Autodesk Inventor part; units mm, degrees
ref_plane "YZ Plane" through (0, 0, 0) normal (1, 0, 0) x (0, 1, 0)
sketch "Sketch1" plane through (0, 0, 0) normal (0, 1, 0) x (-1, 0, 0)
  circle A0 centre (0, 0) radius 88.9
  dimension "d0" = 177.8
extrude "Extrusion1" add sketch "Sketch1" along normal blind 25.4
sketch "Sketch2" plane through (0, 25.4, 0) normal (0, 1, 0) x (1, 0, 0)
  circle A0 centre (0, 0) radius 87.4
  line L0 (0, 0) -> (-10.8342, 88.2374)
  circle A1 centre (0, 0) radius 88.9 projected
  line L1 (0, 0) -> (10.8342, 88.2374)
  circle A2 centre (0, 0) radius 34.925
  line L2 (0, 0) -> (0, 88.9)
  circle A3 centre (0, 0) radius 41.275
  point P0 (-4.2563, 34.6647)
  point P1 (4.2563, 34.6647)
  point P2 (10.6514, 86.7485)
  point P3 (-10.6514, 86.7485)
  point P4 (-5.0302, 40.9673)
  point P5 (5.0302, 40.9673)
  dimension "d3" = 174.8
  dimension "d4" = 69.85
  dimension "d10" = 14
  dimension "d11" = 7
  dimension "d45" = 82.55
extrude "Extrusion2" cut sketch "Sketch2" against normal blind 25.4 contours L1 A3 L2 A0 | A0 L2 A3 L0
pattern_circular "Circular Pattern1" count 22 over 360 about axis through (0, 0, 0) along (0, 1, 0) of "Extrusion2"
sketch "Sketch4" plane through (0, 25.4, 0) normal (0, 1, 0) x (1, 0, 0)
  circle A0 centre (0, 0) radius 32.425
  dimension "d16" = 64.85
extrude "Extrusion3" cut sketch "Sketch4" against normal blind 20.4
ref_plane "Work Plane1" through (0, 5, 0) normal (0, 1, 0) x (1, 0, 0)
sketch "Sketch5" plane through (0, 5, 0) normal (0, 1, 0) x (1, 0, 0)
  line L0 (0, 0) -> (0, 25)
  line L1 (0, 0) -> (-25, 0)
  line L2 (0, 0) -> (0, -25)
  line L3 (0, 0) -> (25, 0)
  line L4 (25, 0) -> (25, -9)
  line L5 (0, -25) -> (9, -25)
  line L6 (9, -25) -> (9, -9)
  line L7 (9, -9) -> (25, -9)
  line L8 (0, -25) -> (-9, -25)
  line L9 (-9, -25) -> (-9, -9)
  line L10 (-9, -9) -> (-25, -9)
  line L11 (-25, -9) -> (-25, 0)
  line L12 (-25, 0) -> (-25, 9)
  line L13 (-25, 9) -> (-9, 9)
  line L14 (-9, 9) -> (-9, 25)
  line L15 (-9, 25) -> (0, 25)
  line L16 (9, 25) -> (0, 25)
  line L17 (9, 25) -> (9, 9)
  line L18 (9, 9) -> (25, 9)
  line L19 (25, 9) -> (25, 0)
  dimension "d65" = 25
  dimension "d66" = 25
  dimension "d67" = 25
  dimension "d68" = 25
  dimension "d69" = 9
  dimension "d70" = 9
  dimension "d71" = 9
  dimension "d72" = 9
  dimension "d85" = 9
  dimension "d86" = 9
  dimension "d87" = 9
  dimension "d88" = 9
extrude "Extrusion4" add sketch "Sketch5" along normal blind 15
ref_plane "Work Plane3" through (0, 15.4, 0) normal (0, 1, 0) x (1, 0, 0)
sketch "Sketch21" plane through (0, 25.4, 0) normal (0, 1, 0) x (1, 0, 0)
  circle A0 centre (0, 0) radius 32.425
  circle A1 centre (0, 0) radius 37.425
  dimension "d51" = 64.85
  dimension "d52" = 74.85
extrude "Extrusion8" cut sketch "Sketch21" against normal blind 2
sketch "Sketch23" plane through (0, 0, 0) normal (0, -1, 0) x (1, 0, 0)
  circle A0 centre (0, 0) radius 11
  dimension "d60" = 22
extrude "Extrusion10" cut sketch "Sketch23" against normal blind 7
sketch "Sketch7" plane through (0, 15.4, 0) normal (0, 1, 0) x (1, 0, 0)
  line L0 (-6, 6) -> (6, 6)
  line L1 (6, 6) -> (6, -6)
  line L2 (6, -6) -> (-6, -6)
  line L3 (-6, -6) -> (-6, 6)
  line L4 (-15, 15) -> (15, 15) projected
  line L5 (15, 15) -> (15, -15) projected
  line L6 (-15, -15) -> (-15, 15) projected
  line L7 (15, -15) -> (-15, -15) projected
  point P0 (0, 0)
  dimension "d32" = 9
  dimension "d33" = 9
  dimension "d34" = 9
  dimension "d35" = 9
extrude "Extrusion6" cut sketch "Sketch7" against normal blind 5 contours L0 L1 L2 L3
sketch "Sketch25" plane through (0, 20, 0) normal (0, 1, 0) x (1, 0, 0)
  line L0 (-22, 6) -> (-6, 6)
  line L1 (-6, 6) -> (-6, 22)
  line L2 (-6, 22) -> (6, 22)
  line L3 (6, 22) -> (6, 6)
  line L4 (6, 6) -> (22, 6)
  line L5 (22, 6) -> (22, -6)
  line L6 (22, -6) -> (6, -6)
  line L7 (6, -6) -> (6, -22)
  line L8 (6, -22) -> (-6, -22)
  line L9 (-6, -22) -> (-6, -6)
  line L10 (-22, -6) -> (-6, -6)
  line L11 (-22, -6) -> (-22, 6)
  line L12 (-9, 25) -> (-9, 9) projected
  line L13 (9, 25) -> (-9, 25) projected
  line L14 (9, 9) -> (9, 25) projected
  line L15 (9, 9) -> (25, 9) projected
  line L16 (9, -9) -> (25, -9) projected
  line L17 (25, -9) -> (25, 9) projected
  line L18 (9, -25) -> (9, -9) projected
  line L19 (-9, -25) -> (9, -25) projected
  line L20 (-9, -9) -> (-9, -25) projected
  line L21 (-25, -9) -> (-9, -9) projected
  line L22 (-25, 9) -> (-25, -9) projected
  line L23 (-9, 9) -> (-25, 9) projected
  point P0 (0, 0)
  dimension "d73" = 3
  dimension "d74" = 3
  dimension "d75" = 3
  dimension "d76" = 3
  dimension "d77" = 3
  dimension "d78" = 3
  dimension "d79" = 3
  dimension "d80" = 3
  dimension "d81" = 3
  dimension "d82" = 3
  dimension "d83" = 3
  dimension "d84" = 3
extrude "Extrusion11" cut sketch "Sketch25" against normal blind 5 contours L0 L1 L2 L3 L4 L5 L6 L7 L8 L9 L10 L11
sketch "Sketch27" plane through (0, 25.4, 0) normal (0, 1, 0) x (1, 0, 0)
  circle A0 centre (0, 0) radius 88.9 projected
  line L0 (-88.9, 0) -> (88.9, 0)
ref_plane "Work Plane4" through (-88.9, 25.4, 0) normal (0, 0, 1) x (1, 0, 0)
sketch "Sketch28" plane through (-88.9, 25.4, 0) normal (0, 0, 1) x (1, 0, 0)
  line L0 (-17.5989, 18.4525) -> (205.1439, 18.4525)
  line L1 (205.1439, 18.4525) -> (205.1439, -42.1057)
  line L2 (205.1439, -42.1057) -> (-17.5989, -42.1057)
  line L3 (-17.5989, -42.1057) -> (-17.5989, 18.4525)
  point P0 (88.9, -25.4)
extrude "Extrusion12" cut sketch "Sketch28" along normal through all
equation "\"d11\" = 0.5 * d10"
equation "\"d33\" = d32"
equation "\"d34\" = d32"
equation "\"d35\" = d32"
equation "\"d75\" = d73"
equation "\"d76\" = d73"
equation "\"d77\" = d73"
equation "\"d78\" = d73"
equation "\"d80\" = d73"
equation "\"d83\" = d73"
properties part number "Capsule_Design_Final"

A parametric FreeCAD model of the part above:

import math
import FreeCAD as App
import Part
import Sketcher

V = App.Vector
Q = App.Units.Quantity

doc = App.newDocument("Part")
params = doc.addObject("Spreadsheet::Sheet", "Params")
for row, (alias, value) in enumerate([
    ("sketch1_diameter", "177.8 mm"),
    ("pad1_length", "25.4 mm"),
    ("sketch2_radius", "87.4 mm"),
    ("pocket1_length", "25.4 mm"),
    ("sketch3_diameter", "64.85 mm"),
    ("pocket2_length", "20.4 mm"),
    ("pad2_length", "15 mm"),
    ("sketch5_diameter", "74.85 mm"),
    ("sketch5_diameter2", "64.85 mm"),
    ("pocket3_length", "2 mm"),
    ("sketch6_diameter", "22 mm"),
    ("pocket4_length", "7 mm"),
    ("sketch7_width", "12 mm"),
    ("pocket5_length", "5 mm"),
    ("sketch8_width", "16 mm"),
    ("sketch8_width2", "12 mm"),
    ("pocket6_length", "5 mm"),
], start=1):
    params.set(f"A{row}", alias)
    params.set(f"B{row}", "=" + value)
    params.setAlias(f"B{row}", alias)

body = doc.addObject("PartDesign::Body", "Body")

sketch1 = body.newObject("Sketcher::SketchObject", "Sketch")
sketch1.AttachmentSupport = (doc.getObject("XZ_Plane"), [""])
sketch1.MapMode = "FlatFace"
sketch1.addGeometry(Part.Circle(V(0, 0, 0), V(0, 0, 1), 89), False)
sketch1.addConstraint([
    Sketcher.Constraint("Coincident", 0, 3, -1, 1),
    Sketcher.Constraint("Diameter", 0, Q("177.8 mm")),
])
sketch1.setExpression("Constraints[1]", "Params.sketch1_diameter")
pad1 = body.newObject("PartDesign::Pad", "Pad")
pad1.Profile = sketch1
pad1.setExpression("Length", "Params.pad1_length")
pad1.Reversed = True

sketch2 = body.newObject("Sketcher::SketchObject", "Sketch001")
sketch2.AttachmentSupport = (doc.getObject("XZ_Plane"), [""])
sketch2.MapMode = "FlatFace"
sketch2.AttachmentOffset = App.Placement(V(0, 0, -25.4), App.Rotation())
sketch2.addGeometry([
    Part.LineSegment(V(5, -41, 0), V(11, -87, 0)),
    Part.ArcOfCircle(Part.Circle(V(0, 0, 0), V(0, 0, 1), 87), math.radians(-97), math.radians(-83)),
    Part.LineSegment(V(-11, -87, 0), V(-5, -41, 0)),
    Part.ArcOfCircle(Part.Circle(V(0, 0, 0), V(0, 0, 1), 41), math.radians(-97), math.radians(-83)),
], False)
sketch2.addConstraint([
    Sketcher.Constraint("Coincident", 0, 2, 1, 2),
    Sketcher.Constraint("Coincident", 1, 1, 2, 1),
    Sketcher.Constraint("Coincident", 2, 2, 3, 1),
    Sketcher.Constraint("Coincident", 3, 2, 0, 1),
    Sketcher.Constraint("Coincident", 1, 3, -1, 1),
    Sketcher.Constraint("Coincident", 3, 3, -1, 1),
    Sketcher.Constraint("Horizontal", 0, 2, 1, 1),
    Sketcher.Constraint("Horizontal", 2, 2, 3, 2),
    Sketcher.Constraint("Radius", 1, Q("87.4 mm")),
    Sketcher.Constraint("Radius", 3, Q("41.275 mm")),
    Sketcher.Constraint("Angle", 0, Q("-83 deg")),
    Sketcher.Constraint("DistanceX", -1, 1, 0, 2, Q("10.6514 mm")),
])
sketch2.setExpression("Constraints[8]", "Params.sketch2_radius")
pocket1 = body.newObject("PartDesign::Pocket", "Pocket")
pocket1.Profile = sketch2
pocket1.setExpression("Length", "Params.pocket1_length")
pocket1.Reversed = True
doc.recompute()

polarpattern = body.newObject("PartDesign::PolarPattern", "PolarPattern")
polarpattern.Originals = [pocket1]
polarpattern.Axis = (doc.getObject("Y_Axis"), [""])
polarpattern.Angle = 360
polarpattern.Occurrences = 22
body.Tip = polarpattern

sketch3 = body.newObject("Sketcher::SketchObject", "Sketch002")
sketch3.AttachmentSupport = (doc.getObject("XZ_Plane"), [""])
sketch3.MapMode = "FlatFace"
sketch3.AttachmentOffset = App.Placement(V(0, 0, -25.4), App.Rotation())
sketch3.addGeometry(Part.Circle(V(0, 0, 0), V(0, 0, 1), 32), False)
sketch3.addConstraint([
    Sketcher.Constraint("Coincident", 0, 3, -1, 1),
    Sketcher.Constraint("Diameter", 0, Q("64.85 mm")),
])
sketch3.setExpression("Constraints[1]", "Params.sketch3_diameter")
pocket2 = body.newObject("PartDesign::Pocket", "Pocket001")
pocket2.Profile = sketch3
pocket2.setExpression("Length", "Params.pocket2_length")
pocket2.Reversed = True

sketch4 = body.newObject("Sketcher::SketchObject", "Sketch003")
sketch4.AttachmentSupport = (doc.getObject("XZ_Plane"), [""])
sketch4.MapMode = "FlatFace"
sketch4.AttachmentOffset = App.Placement(V(0, 0, -5), App.Rotation())
sketch4.addGeometry([
    Part.LineSegment(V(-25, -9, 0), V(-25, 9, 0)),
    Part.LineSegment(V(-25, 9, 0), V(-9, 9, 0)),
    Part.LineSegment(V(-9, 9, 0), V(-9, 25, 0)),
    Part.LineSegment(V(-9, 25, 0), V(9, 25, 0)),
    Part.LineSegment(V(9, 25, 0), V(9, 9, 0)),
    Part.LineSegment(V(9, 9, 0), V(25, 9, 0)),
    Part.LineSegment(V(25, 9, 0), V(25, -9, 0)),
    Part.LineSegment(V(25, -9, 0), V(9, -9, 0)),
    Part.LineSegment(V(9, -9, 0), V(9, -25, 0)),
    Part.LineSegment(V(9, -25, 0), V(-9, -25, 0)),
    Part.LineSegment(V(-9, -25, 0), V(-9, -9, 0)),
    Part.LineSegment(V(-9, -9, 0), V(-25, -9, 0)),
], False)
sketch4.addConstraint([
    Sketcher.Constraint("Coincident", 0, 2, 1, 1),
    Sketcher.Constraint("Coincident", 1, 2, 2, 1),
    Sketcher.Constraint("Coincident", 2, 2, 3, 1),
    Sketcher.Constraint("Coincident", 3, 2, 4, 1),
    Sketcher.Constraint("Coincident", 4, 2, 5, 1),
    Sketcher.Constraint("Coincident", 5, 2, 6, 1),
    Sketcher.Constraint("Coincident", 6, 2, 7, 1),
    Sketcher.Constraint("Coincident", 7, 2, 8, 1),
    Sketcher.Constraint("Coincident", 8, 2, 9, 1),
    Sketcher.Constraint("Coincident", 9, 2, 10, 1),
    Sketcher.Constraint("Coincident", 10, 2, 11, 1),
    Sketcher.Constraint("Coincident", 11, 2, 0, 1),
    Sketcher.Constraint("Vertical", 0),
    Sketcher.Constraint("Horizontal", 1),
    Sketcher.Constraint("Vertical", 2),
    Sketcher.Constraint("Horizontal", 3),
    Sketcher.Constraint("Vertical", 4),
    Sketcher.Constraint("Horizontal", 5),
    Sketcher.Constraint("Vertical", 6),
    Sketcher.Constraint("Horizontal", 7),
    Sketcher.Constraint("Vertical", 8),
    Sketcher.Constraint("Horizontal", 9),
    Sketcher.Constraint("Vertical", 10),
    Sketcher.Constraint("Horizontal", 11),
    Sketcher.Constraint("Symmetric", 0, 2, 6, 2, -1, 1),
    Sketcher.Constraint("Symmetric", 2, 2, 8, 2, -1, 1),
    Sketcher.Constraint("Symmetric", 4, 2, 10, 2, -1, 1),
    Sketcher.Constraint("Symmetric", 1, 2, 4, 2, -2),
    Sketcher.Constraint("Equal", 9, 0),
    Sketcher.Constraint("Equal", 11, 2),
    Sketcher.Constraint("DistanceX", 0, 2, -1, 1, Q("25 mm")),
    Sketcher.Constraint("DistanceY", -1, 1, 0, 2, Q("9 mm")),
])
pad2 = body.newObject("PartDesign::Pad", "Pad001")
pad2.Profile = sketch4
pad2.setExpression("Length", "Params.pad2_length")
pad2.Reversed = True

sketch5 = body.newObject("Sketcher::SketchObject", "Sketch004")
sketch5.AttachmentSupport = (doc.getObject("XZ_Plane"), [""])
sketch5.MapMode = "FlatFace"
sketch5.AttachmentOffset = App.Placement(V(0, 0, -25.4), App.Rotation())
sketch5.addGeometry([
    Part.Circle(V(0, 0, 0), V(0, 0, 1), 37),
    Part.Circle(V(0, 0, 0), V(0, 0, 1), 32),
], False)
sketch5.addConstraint([
    Sketcher.Constraint("Coincident", 0, 3, -1, 1),
    Sketcher.Constraint("Coincident", 1, 3, -1, 1),
    Sketcher.Constraint("Diameter", 0, Q("74.85 mm")),
    Sketcher.Constraint("Diameter", 1, Q("64.85 mm")),
])
sketch5.setExpression("Constraints[2]", "Params.sketch5_diameter")
sketch5.setExpression("Constraints[3]", "Params.sketch5_diameter2")
pocket3 = body.newObject("PartDesign::Pocket", "Pocket002")
pocket3.Profile = sketch5
pocket3.setExpression("Length", "Params.pocket3_length")
pocket3.Reversed = True

sketch6 = body.newObject("Sketcher::SketchObject", "Sketch005")
sketch6.AttachmentSupport = (doc.getObject("XZ_Plane"), [""])
sketch6.MapMode = "FlatFace"
sketch6.addGeometry(Part.Circle(V(0, 0, 0), V(0, 0, 1), 11), False)
sketch6.addConstraint([
    Sketcher.Constraint("Coincident", 0, 3, -1, 1),
    Sketcher.Constraint("Diameter", 0, Q("22 mm")),
])
sketch6.setExpression("Constraints[1]", "Params.sketch6_diameter")
pocket4 = body.newObject("PartDesign::Pocket", "Pocket003")
pocket4.Profile = sketch6
pocket4.setExpression("Length", "Params.pocket4_length")

sketch7 = body.newObject("Sketcher::SketchObject", "Sketch006")
sketch7.AttachmentSupport = (doc.getObject("XZ_Plane"), [""])
sketch7.MapMode = "FlatFace"
sketch7.AttachmentOffset = App.Placement(V(0, 0, -15.4), App.Rotation())
sketch7.addGeometry([
    Part.LineSegment(V(6, -6, 0), V(-6, -6, 0)),
    Part.LineSegment(V(-6, -6, 0), V(-6, 6, 0)),
    Part.LineSegment(V(-6, 6, 0), V(6, 6, 0)),
    Part.LineSegment(V(6, 6, 0), V(6, -6, 0)),
], False)
sketch7.addConstraint([
    Sketcher.Constraint("Coincident", 0, 2, 1, 1),
    Sketcher.Constraint("Coincident", 1, 2, 2, 1),
    Sketcher.Constraint("Coincident", 2, 2, 3, 1),
    Sketcher.Constraint("Coincident", 3, 2, 0, 1),
    Sketcher.Constraint("Horizontal", 0),
    Sketcher.Constraint("Vertical", 1),
    Sketcher.Constraint("Horizontal", 2),
    Sketcher.Constraint("Vertical", 3),
    Sketcher.Constraint("Symmetric", 0, 2, 2, 2, -1, 1),
    Sketcher.Constraint("Equal", 2, 1),
    Sketcher.Constraint("DistanceX", 0, 2, 0, 1, Q("12 mm")),
])
sketch7.setExpression("Constraints[10]", "Params.sketch7_width")
pocket5 = body.newObject("PartDesign::Pocket", "Pocket004")
pocket5.Profile = sketch7
pocket5.setExpression("Length", "Params.pocket5_length")
pocket5.Reversed = True

sketch8 = body.newObject("Sketcher::SketchObject", "Sketch007")
sketch8.AttachmentSupport = (doc.getObject("XZ_Plane"), [""])
sketch8.MapMode = "FlatFace"
sketch8.AttachmentOffset = App.Placement(V(0, 0, -20), App.Rotation())
sketch8.addGeometry([
    Part.LineSegment(V(-6, -6, 0), V(-22, -6, 0)),
    Part.LineSegment(V(-22, -6, 0), V(-22, 6, 0)),
    Part.LineSegment(V(-22, 6, 0), V(-6, 6, 0)),
    Part.LineSegment(V(-6, 6, 0), V(-6, 22, 0)),
    Part.LineSegment(V(-6, 22, 0), V(6, 22, 0)),
    Part.LineSegment(V(6, 22, 0), V(6, 6, 0)),
    Part.LineSegment(V(6, 6, 0), V(22, 6, 0)),
    Part.LineSegment(V(22, 6, 0), V(22, -6, 0)),
    Part.LineSegment(V(22, -6, 0), V(6, -6, 0)),
    Part.LineSegment(V(6, -6, 0), V(6, -22, 0)),
    Part.LineSegment(V(6, -22, 0), V(-6, -22, 0)),
    Part.LineSegment(V(-6, -22, 0), V(-6, -6, 0)),
], False)
sketch8.addConstraint([
    Sketcher.Constraint("Coincident", 0, 2, 1, 1),
    Sketcher.Constraint("Coincident", 1, 2, 2, 1),
    Sketcher.Constraint("Coincident", 2, 2, 3, 1),
    Sketcher.Constraint("Coincident", 3, 2, 4, 1),
    Sketcher.Constraint("Coincident", 4, 2, 5, 1),
    Sketcher.Constraint("Coincident", 5, 2, 6, 1),
    Sketcher.Constraint("Coincident", 6, 2, 7, 1),
    Sketcher.Constraint("Coincident", 7, 2, 8, 1),
    Sketcher.Constraint("Coincident", 8, 2, 9, 1),
    Sketcher.Constraint("Coincident", 9, 2, 10, 1),
    Sketcher.Constraint("Coincident", 10, 2, 11, 1),
    Sketcher.Constraint("Coincident", 11, 2, 0, 1),
    Sketcher.Constraint("Horizontal", 0),
    Sketcher.Constraint("Vertical", 1),
    Sketcher.Constraint("Horizontal", 2),
    Sketcher.Constraint("Vertical", 3),
    Sketcher.Constraint("Horizontal", 4),
    Sketcher.Constraint("Vertical", 5),
    Sketcher.Constraint("Horizontal", 6),
    Sketcher.Constraint("Vertical", 7),
    Sketcher.Constraint("Horizontal", 8),
    Sketcher.Constraint("Vertical", 9),
    Sketcher.Constraint("Horizontal", 10),
    Sketcher.Constraint("Vertical", 11),
    Sketcher.Constraint("Symmetric", 0, 2, 6, 2, -1, 1),
    Sketcher.Constraint("Symmetric", 2, 2, 8, 2, -1, 1),
    Sketcher.Constraint("Symmetric", 4, 2, 10, 2, -1, 1),
    Sketcher.Constraint("Symmetric", 2, 2, 5, 2, -2),
    Sketcher.Constraint("Equal", 10, 1),
    Sketcher.Constraint("Equal", 8, 3),
    Sketcher.Constraint("DistanceX", 0, 2, 0, 1, Q("16 mm")),
    Sketcher.Constraint("DistanceX", 4, 1, 4, 2, Q("12 mm")),
])
sketch8.setExpression("Constraints[30]", "Params.sketch8_width")
sketch8.setExpression("Constraints[31]", "Params.sketch8_width2")
pocket6 = body.newObject("PartDesign::Pocket", "Pocket005")
pocket6.Profile = sketch8
pocket6.setExpression("Length", "Params.pocket6_length")
pocket6.Reversed = True

sketch9 = body.newObject("Sketcher::SketchObject", "Sketch008")
sketch9.AttachmentSupport = (doc.getObject("XY_Plane"), [""])
sketch9.MapMode = "FlatFace"
sketch9.addGeometry([
    Part.LineSegment(V(116, 44, 0), V(-106, 44, 0)),
    Part.LineSegment(V(-106, 44, 0), V(-106, -17, 0)),
    Part.LineSegment(V(-106, -17, 0), V(116, -17, 0)),
    Part.LineSegment(V(116, -17, 0), V(116, 44, 0)),
], False)
sketch9.addConstraint([
    Sketcher.Constraint("Coincident", 0, 2, 1, 1),
    Sketcher.Constraint("Coincident", 1, 2, 2, 1),
    Sketcher.Constraint("Coincident", 2, 2, 3, 1),
    Sketcher.Constraint("Coincident", 3, 2, 0, 1),
    Sketcher.Constraint("Horizontal", 0),
    Sketcher.Constraint("Vertical", 1),
    Sketcher.Constraint("Horizontal", 2),
    Sketcher.Constraint("Vertical", 3),
    Sketcher.Constraint("DistanceX", 0, 2, 0, 1, Q("222.7428 mm")),
    Sketcher.Constraint("DistanceY", 1, 2, 1, 1, Q("60.5582 mm")),
    Sketcher.Constraint("DistanceX", 0, 2, -1, 1, Q("106.499 mm")),
    Sketcher.Constraint("DistanceY", -1, 1, 0, 2, Q("43.8525 mm")),
])
pocket7 = body.newObject("PartDesign::Pocket", "Pocket006")
pocket7.Profile = sketch9
pocket7.Type = "ThroughAll"
pocket7.Reversed = True

doc.recompute()
